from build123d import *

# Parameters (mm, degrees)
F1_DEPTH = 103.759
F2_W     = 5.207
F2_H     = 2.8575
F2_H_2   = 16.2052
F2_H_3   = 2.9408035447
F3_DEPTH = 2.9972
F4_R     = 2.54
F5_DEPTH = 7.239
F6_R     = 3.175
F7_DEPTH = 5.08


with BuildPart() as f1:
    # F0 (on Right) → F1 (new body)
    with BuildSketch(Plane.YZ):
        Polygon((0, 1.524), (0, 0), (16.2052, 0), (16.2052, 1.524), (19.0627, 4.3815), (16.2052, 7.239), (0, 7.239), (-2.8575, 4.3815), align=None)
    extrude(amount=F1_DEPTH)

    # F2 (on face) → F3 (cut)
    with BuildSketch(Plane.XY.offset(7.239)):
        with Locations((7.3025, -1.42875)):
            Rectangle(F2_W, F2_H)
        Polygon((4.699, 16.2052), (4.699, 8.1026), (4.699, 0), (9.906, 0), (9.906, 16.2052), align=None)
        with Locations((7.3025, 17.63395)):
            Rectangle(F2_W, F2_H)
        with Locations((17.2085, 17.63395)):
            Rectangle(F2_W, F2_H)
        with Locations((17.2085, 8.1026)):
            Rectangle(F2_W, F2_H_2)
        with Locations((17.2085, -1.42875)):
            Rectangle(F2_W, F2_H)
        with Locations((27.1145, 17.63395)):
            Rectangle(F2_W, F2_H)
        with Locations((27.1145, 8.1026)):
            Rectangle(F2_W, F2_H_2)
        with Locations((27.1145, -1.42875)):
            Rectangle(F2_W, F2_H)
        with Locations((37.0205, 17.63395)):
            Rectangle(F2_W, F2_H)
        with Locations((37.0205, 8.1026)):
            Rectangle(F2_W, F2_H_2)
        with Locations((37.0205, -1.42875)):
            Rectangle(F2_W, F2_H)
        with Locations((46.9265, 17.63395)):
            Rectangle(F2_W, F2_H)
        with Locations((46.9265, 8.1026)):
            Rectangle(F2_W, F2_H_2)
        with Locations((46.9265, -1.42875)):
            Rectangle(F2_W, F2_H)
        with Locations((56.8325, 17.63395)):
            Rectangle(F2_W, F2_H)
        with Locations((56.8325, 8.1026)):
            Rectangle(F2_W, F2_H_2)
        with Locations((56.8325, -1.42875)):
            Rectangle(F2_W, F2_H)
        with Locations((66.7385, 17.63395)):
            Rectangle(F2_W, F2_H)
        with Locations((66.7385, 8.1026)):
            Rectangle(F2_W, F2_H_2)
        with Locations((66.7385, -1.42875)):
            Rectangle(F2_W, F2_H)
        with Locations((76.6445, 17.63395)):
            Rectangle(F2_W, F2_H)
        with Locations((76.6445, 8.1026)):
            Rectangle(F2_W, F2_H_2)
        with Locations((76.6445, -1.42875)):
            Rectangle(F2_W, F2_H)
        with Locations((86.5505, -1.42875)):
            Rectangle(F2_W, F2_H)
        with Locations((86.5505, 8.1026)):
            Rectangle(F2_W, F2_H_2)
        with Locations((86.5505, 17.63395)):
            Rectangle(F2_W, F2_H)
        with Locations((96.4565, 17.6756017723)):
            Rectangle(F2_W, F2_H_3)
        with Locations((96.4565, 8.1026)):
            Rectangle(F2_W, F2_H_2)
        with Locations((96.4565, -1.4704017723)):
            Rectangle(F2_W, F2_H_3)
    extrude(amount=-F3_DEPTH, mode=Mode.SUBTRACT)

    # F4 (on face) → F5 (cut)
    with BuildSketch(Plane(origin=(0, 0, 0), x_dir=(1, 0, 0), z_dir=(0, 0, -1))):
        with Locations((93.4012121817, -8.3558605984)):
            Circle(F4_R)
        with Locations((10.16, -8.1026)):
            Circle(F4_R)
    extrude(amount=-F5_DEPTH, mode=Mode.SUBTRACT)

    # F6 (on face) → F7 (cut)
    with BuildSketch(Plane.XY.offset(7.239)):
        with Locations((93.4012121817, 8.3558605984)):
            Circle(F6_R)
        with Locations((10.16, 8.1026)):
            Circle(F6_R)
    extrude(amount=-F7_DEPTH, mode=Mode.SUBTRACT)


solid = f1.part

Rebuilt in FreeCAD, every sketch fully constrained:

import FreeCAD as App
import Part
import Sketcher
from FreeCAD import Vector
Q = App.Units.Quantity

doc = App.newDocument("Part")
body = doc.addObject("PartDesign::Body", "Body")

sketch1 = body.newObject("Sketcher::SketchObject", "Sketch")
sketch1.AttachmentSupport = (doc.getObject("YZ_Plane"), [""])
sketch1.MapMode = "FlatFace"
sketch1.addGeometry(Part.LineSegment(Vector(0, 1.524, 0), Vector(0, 0, 0)), False)
sketch1.addGeometry(Part.LineSegment(Vector(0, 0, 0), Vector(16.2052, 0, 0)), False)
sketch1.addGeometry(Part.LineSegment(Vector(16.2052, 0, 0), Vector(16.2052, 1.524, 0)), False)
sketch1.addGeometry(Part.LineSegment(Vector(16.2052, 1.524, 0), Vector(19.0627, 4.3815, 0)), False)
sketch1.addGeometry(Part.LineSegment(Vector(19.0627, 4.3815, 0), Vector(16.2052, 7.239, 0)), False)
sketch1.addGeometry(Part.LineSegment(Vector(16.2052, 7.239, 0), Vector(0, 7.239, 0)), False)
sketch1.addGeometry(Part.LineSegment(Vector(0, 7.239, 0), Vector(-2.8575, 4.3815, 0)), False)
sketch1.addGeometry(Part.LineSegment(Vector(-2.8575, 4.3815, 0), Vector(0, 1.524, 0)), False)
sketch1.addConstraint(Sketcher.Constraint("Coincident", 0, 2, 1, 1))
sketch1.addConstraint(Sketcher.Constraint("Coincident", 1, 2, 2, 1))
sketch1.addConstraint(Sketcher.Constraint("Coincident", 2, 2, 3, 1))
sketch1.addConstraint(Sketcher.Constraint("Coincident", 3, 2, 4, 1))
sketch1.addConstraint(Sketcher.Constraint("Coincident", 4, 2, 5, 1))
sketch1.addConstraint(Sketcher.Constraint("Coincident", 5, 2, 6, 1))
sketch1.addConstraint(Sketcher.Constraint("Coincident", 6, 2, 7, 1))
sketch1.addConstraint(Sketcher.Constraint("Coincident", 7, 2, 0, 1))
sketch1.addConstraint(Sketcher.Constraint("Vertical", 0))
sketch1.addConstraint(Sketcher.Constraint("Horizontal", 1))
sketch1.addConstraint(Sketcher.Constraint("Vertical", 2))
sketch1.addConstraint(Sketcher.Constraint("Horizontal", 5))
sketch1.addConstraint(Sketcher.Constraint("Coincident", 0, 2, -1, 1))
sketch1.addConstraint(Sketcher.Constraint("PointOnObject", 5, 2, -2))
sketch1.addConstraint(Sketcher.Constraint("Perpendicular", 3, 4))
sketch1.addConstraint(Sketcher.Constraint("Perpendicular", 4, 6))
sketch1.addConstraint(Sketcher.Constraint("Perpendicular", 6, 7))
sketch1.addConstraint(Sketcher.Constraint("Horizontal", 3, 2, 6, 2))
sketch1.addConstraint(Sketcher.Constraint("Horizontal", 2, 2, 7, 2))
sketch1.addConstraint(Sketcher.Constraint("Vertical", 2, 2, 4, 2))
sketch1.addConstraint(Sketcher.Constraint("DistanceY", 0, 2, 0, 1, Q("0.06 in")))
sketch1.addConstraint(Sketcher.Constraint("DistanceX", 1, 1, 1, 2, Q("0.638 in")))
sketch1.addConstraint(Sketcher.Constraint("DistanceY", -1, 1, 4, 2, Q("0.285 in")))
pad1 = body.newObject("PartDesign::Pad", "Pad")
pad1.Profile = sketch1
pad1.Length = Q("4.085 in")

sketch2 = body.newObject("Sketcher::SketchObject", "Sketch001")
sketch2.AttachmentSupport = (doc.getObject("XY_Plane"), [""])
sketch2.MapMode = "FlatFace"
sketch2.AttachmentOffset = App.Placement(Vector(0, 0, 0.285 * 25.4), App.Rotation())
sketch2.addGeometry(Part.LineSegment(Vector(4.699, -2.8575, 0), Vector(9.906, -2.8575, 0)), False)
sketch2.addGeometry(Part.LineSegment(Vector(9.906, -2.8575, 0), Vector(9.906, 19.0627, 0)), False)
sketch2.addGeometry(Part.LineSegment(Vector(9.906, 19.0627, 0), Vector(4.699, 19.0627, 0)), False)
sketch2.addGeometry(Part.LineSegment(Vector(4.699, 19.0627, 0), Vector(4.699, -2.8575, 0)), False)
sketch2.addGeometry(Part.LineSegment(Vector(14.605, 19.0627, 0), Vector(14.605, -2.8575, 0)), False)
sketch2.addGeometry(Part.LineSegment(Vector(14.605, -2.8575, 0), Vector(19.812, -2.8575, 0)), False)
sketch2.addGeometry(Part.LineSegment(Vector(19.812, -2.8575, 0), Vector(19.812, 19.0627, 0)), False)
sketch2.addGeometry(Part.LineSegment(Vector(19.812, 19.0627, 0), Vector(14.605, 19.0627, 0)), False)
sketch2.addGeometry(Part.LineSegment(Vector(24.511, 19.0627, 0), Vector(24.511, -2.8575, 0)), False)
sketch2.addGeometry(Part.LineSegment(Vector(24.511, -2.8575, 0), Vector(29.718, -2.8575, 0)), False)
sketch2.addGeometry(Part.LineSegment(Vector(29.718, -2.8575, 0), Vector(29.718, 19.0627, 0)), False)
sketch2.addGeometry(Part.LineSegment(Vector(29.718, 19.0627, 0), Vector(24.511, 19.0627, 0)), False)
sketch2.addGeometry(Part.LineSegment(Vector(34.417, 19.0627, 0), Vector(34.417, -2.8575, 0)), False)
sketch2.addGeometry(Part.LineSegment(Vector(34.417, -2.8575, 0), Vector(39.624, -2.8575, 0)), False)
sketch2.addGeometry(Part.LineSegment(Vector(39.624, -2.8575, 0), Vector(39.624, 19.0627, 0)), False)
sketch2.addGeometry(Part.LineSegment(Vector(39.624, 19.0627, 0), Vector(34.417, 19.0627, 0)), False)
sketch2.addGeometry(Part.LineSegment(Vector(44.323, 19.0627, 0), Vector(44.323, -2.8575, 0)), False)
sketch2.addGeometry(Part.LineSegment(Vector(44.323, -2.8575, 0), Vector(49.53, -2.8575, 0)), False)
sketch2.addGeometry(Part.LineSegment(Vector(49.53, -2.8575, 0), Vector(49.53, 19.0627, 0)), False)
sketch2.addGeometry(Part.LineSegment(Vector(49.53, 19.0627, 0), Vector(44.323, 19.0627, 0)), False)
sketch2.addGeometry(Part.LineSegment(Vector(54.229, 19.0627, 0), Vector(54.229, -2.8575, 0)), False)
sketch2.addGeometry(Part.LineSegment(Vector(54.229, -2.8575, 0), Vector(59.436, -2.8575, 0)), False)
sketch2.addGeometry(Part.LineSegment(Vector(59.436, -2.8575, 0), Vector(59.436, 19.0627, 0)), False)
sketch2.addGeometry(Part.LineSegment(Vector(59.436, 19.0627, 0), Vector(54.229, 19.0627, 0)), False)
sketch2.addGeometry(Part.LineSegment(Vector(64.135, 19.0627, 0), Vector(64.135, -2.8575, 0)), False)
sketch2.addGeometry(Part.LineSegment(Vector(64.135, -2.8575, 0), Vector(69.342, -2.8575, 0)), False)
sketch2.addGeometry(Part.LineSegment(Vector(69.342, -2.8575, 0), Vector(69.342, 19.0627, 0)), False)
sketch2.addGeometry(Part.LineSegment(Vector(69.342, 19.0627, 0), Vector(64.135, 19.0627, 0)), False)
sketch2.addGeometry(Part.LineSegment(Vector(74.041, 19.0627, 0), Vector(74.041, -2.8575, 0)), False)
sketch2.addGeometry(Part.LineSegment(Vector(74.041, -2.8575, 0), Vector(79.248, -2.8575, 0)), False)
sketch2.addGeometry(Part.LineSegment(Vector(79.248, -2.8575, 0), Vector(79.248, 19.0627, 0)), False)
sketch2.addGeometry(Part.LineSegment(Vector(79.248, 19.0627, 0), Vector(74.041, 19.0627, 0)), False)
sketch2.addGeometry(Part.LineSegment(Vector(83.947, -2.8575, 0), Vector(89.154, -2.8575, 0)), False)
sketch2.addGeometry(Part.LineSegment(Vector(89.154, -2.8575, 0), Vector(89.154, 19.0627, 0)), False)
sketch2.addGeometry(Part.LineSegment(Vector(89.154, 19.0627, 0), Vector(83.947, 19.0627, 0)), False)
sketch2.addGeometry(Part.LineSegment(Vector(83.947, 19.0627, 0), Vector(83.947, -2.8575, 0)), False)
sketch2.addGeometry(Part.LineSegment(Vector(93.853, 19.146004, 0), Vector(93.853, -2.940804, 0)), False)
sketch2.addGeometry(Part.LineSegment(Vector(93.853, -2.940804, 0), Vector(99.06, -2.940804, 0)), False)
sketch2.addGeometry(Part.LineSegment(Vector(99.06, -2.940804, 0), Vector(99.06, 19.146004, 0)), False)
sketch2.addGeometry(Part.LineSegment(Vector(99.06, 19.146004, 0), Vector(93.853, 19.146004, 0)), False)
sketch2.addConstraint(Sketcher.Constraint("Coincident", 0, 2, 1, 1))
sketch2.addConstraint(Sketcher.Constraint("Coincident", 1, 2, 2, 1))
sketch2.addConstraint(Sketcher.Constraint("Coincident", 2, 2, 3, 1))
sketch2.addConstraint(Sketcher.Constraint("Coincident", 3, 2, 0, 1))
sketch2.addConstraint(Sketcher.Constraint("Coincident", 4, 2, 5, 1))
sketch2.addConstraint(Sketcher.Constraint("Coincident", 5, 2, 6, 1))
sketch2.addConstraint(Sketcher.Constraint("Coincident", 6, 2, 7, 1))
sketch2.addConstraint(Sketcher.Constraint("Coincident", 7, 2, 4, 1))
sketch2.addConstraint(Sketcher.Constraint("Coincident", 8, 2, 9, 1))
sketch2.addConstraint(Sketcher.Constraint("Coincident", 9, 2, 10, 1))
sketch2.addConstraint(Sketcher.Constraint("Coincident", 10, 2, 11, 1))
sketch2.addConstraint(Sketcher.Constraint("Coincident", 11, 2, 8, 1))
sketch2.addConstraint(Sketcher.Constraint("Coincident", 12, 2, 13, 1))
sketch2.addConstraint(Sketcher.Constraint("Coincident", 13, 2, 14, 1))
sketch2.addConstraint(Sketcher.Constraint("Coincident", 14, 2, 15, 1))
sketch2.addConstraint(Sketcher.Constraint("Coincident", 15, 2, 12, 1))
sketch2.addConstraint(Sketcher.Constraint("Coincident", 16, 2, 17, 1))
sketch2.addConstraint(Sketcher.Constraint("Coincident", 17, 2, 18, 1))
sketch2.addConstraint(Sketcher.Constraint("Coincident", 18, 2, 19, 1))
sketch2.addConstraint(Sketcher.Constraint("Coincident", 19, 2, 16, 1))
sketch2.addConstraint(Sketcher.Constraint("Coincident", 20, 2, 21, 1))
sketch2.addConstraint(Sketcher.Constraint("Coincident", 21, 2, 22, 1))
sketch2.addConstraint(Sketcher.Constraint("Coincident", 22, 2, 23, 1))
sketch2.addConstraint(Sketcher.Constraint("Coincident", 23, 2, 20, 1))
sketch2.addConstraint(Sketcher.Constraint("Coincident", 24, 2, 25, 1))
sketch2.addConstraint(Sketcher.Constraint("Coincident", 25, 2, 26, 1))
sketch2.addConstraint(Sketcher.Constraint("Coincident", 26, 2, 27, 1))
sketch2.addConstraint(Sketcher.Constraint("Coincident", 27, 2, 24, 1))
sketch2.addConstraint(Sketcher.Constraint("Coincident", 28, 2, 29, 1))
sketch2.addConstraint(Sketcher.Constraint("Coincident", 29, 2, 30, 1))
sketch2.addConstraint(Sketcher.Constraint("Coincident", 30, 2, 31, 1))
sketch2.addConstraint(Sketcher.Constraint("Coincident", 31, 2, 28, 1))
sketch2.addConstraint(Sketcher.Constraint("Coincident", 32, 2, 33, 1))
sketch2.addConstraint(Sketcher.Constraint("Coincident", 33, 2, 34, 1))
sketch2.addConstraint(Sketcher.Constraint("Coincident", 34, 2, 35, 1))
sketch2.addConstraint(Sketcher.Constraint("Coincident", 35, 2, 32, 1))
sketch2.addConstraint(Sketcher.Constraint("Coincident", 36, 2, 37, 1))
sketch2.addConstraint(Sketcher.Constraint("Coincident", 37, 2, 38, 1))
sketch2.addConstraint(Sketcher.Constraint("Coincident", 38, 2, 39, 1))
sketch2.addConstraint(Sketcher.Constraint("Coincident", 39, 2, 36, 1))
sketch2.addConstraint(Sketcher.Constraint("Horizontal", 0))
sketch2.addConstraint(Sketcher.Constraint("Vertical", 1))
sketch2.addConstraint(Sketcher.Constraint("Horizontal", 2))
sketch2.addConstraint(Sketcher.Constraint("Vertical", 3))
sketch2.addConstraint(Sketcher.Constraint("Vertical", 4))
sketch2.addConstraint(Sketcher.Constraint("Horizontal", 5))
sketch2.addConstraint(Sketcher.Constraint("Vertical", 6))
sketch2.addConstraint(Sketcher.Constraint("Horizontal", 7))
sketch2.addConstraint(Sketcher.Constraint("Vertical", 8))
sketch2.addConstraint(Sketcher.Constraint("Horizontal", 9))
sketch2.addConstraint(Sketcher.Constraint("Vertical", 10))
sketch2.addConstraint(Sketcher.Constraint("Horizontal", 11))
sketch2.addConstraint(Sketcher.Constraint("Vertical", 12))
sketch2.addConstraint(Sketcher.Constraint("Horizontal", 13))
sketch2.addConstraint(Sketcher.Constraint("Vertical", 14))
sketch2.addConstraint(Sketcher.Constraint("Horizontal", 15))
sketch2.addConstraint(Sketcher.Constraint("Vertical", 16))
sketch2.addConstraint(Sketcher.Constraint("Horizontal", 17))
sketch2.addConstraint(Sketcher.Constraint("Vertical", 18))
sketch2.addConstraint(Sketcher.Constraint("Horizontal", 19))
sketch2.addConstraint(Sketcher.Constraint("Vertical", 20))
sketch2.addConstraint(Sketcher.Constraint("Horizontal", 21))
sketch2.addConstraint(Sketcher.Constraint("Vertical", 22))
sketch2.addConstraint(Sketcher.Constraint("Horizontal", 23))
sketch2.addConstraint(Sketcher.Constraint("Vertical", 24))
sketch2.addConstraint(Sketcher.Constraint("Horizontal", 25))
sketch2.addConstraint(Sketcher.Constraint("Vertical", 26))
sketch2.addConstraint(Sketcher.Constraint("Horizontal", 27))
sketch2.addConstraint(Sketcher.Constraint("Vertical", 28))
sketch2.addConstraint(Sketcher.Constraint("Horizontal", 29))
sketch2.addConstraint(Sketcher.Constraint("Vertical", 30))
sketch2.addConstraint(Sketcher.Constraint("Horizontal", 31))
sketch2.addConstraint(Sketcher.Constraint("Horizontal", 32))
sketch2.addConstraint(Sketcher.Constraint("Vertical", 33))
sketch2.addConstraint(Sketcher.Constraint("Horizontal", 34))
sketch2.addConstraint(Sketcher.Constraint("Vertical", 35))
sketch2.addConstraint(Sketcher.Constraint("Vertical", 36))
sketch2.addConstraint(Sketcher.Constraint("Horizontal", 37))
sketch2.addConstraint(Sketcher.Constraint("Vertical", 38))
sketch2.addConstraint(Sketcher.Constraint("Horizontal", 39))
sketch2.addConstraint(Sketcher.Constraint("Horizontal", 3, 2, 4, 2))
sketch2.addConstraint(Sketcher.Constraint("Horizontal", 2, 2, 6, 2))
sketch2.addConstraint(Sketcher.Constraint("Horizontal", 5, 2, 8, 2))
sketch2.addConstraint(Sketcher.Constraint("Horizontal", 7, 2, 10, 2))
sketch2.addConstraint(Sketcher.Constraint("Horizontal", 9, 2, 12, 2))
sketch2.addConstraint(Sketcher.Constraint("Horizontal", 11, 2, 14, 2))
sketch2.addConstraint(Sketcher.Constraint("Horizontal", 13, 2, 16, 2))
sketch2.addConstraint(Sketcher.Constraint("Horizontal", 15, 2, 18, 2))
sketch2.addConstraint(Sketcher.Constraint("Horizontal", 17, 2, 20, 2))
sketch2.addConstraint(Sketcher.Constraint("Horizontal", 19, 2, 22, 2))
sketch2.addConstraint(Sketcher.Constraint("Horizontal", 21, 2, 24, 2))
sketch2.addConstraint(Sketcher.Constraint("Horizontal", 23, 2, 26, 2))
sketch2.addConstraint(Sketcher.Constraint("Horizontal", 25, 2, 28, 2))
sketch2.addConstraint(Sketcher.Constraint("Horizontal", 27, 2, 30, 2))
sketch2.addConstraint(Sketcher.Constraint("Horizontal", 29, 2, 32, 2))
sketch2.addConstraint(Sketcher.Constraint("Horizontal", 31, 2, 33, 2))
sketch2.addConstraint(Sketcher.Constraint("Equal", 2, 5))
sketch2.addConstraint(Sketcher.Constraint("Equal", 7, 9))
sketch2.addConstraint(Sketcher.Constraint("Equal", 11, 13))
sketch2.addConstraint(Sketcher.Constraint("Equal", 15, 17))
sketch2.addConstraint(Sketcher.Constraint("Equal", 19, 21))
sketch2.addConstraint(Sketcher.Constraint("Equal", 23, 25))
sketch2.addConstraint(Sketcher.Constraint("Equal", 27, 29))
sketch2.addConstraint(Sketcher.Constraint("Equal", 31, 32))
sketch2.addConstraint(Sketcher.Constraint("Equal", 34, 37))
sketch2.addConstraint(Sketcher.Constraint("DistanceX", -1, 1, 37, 2, Q("3.9 in")))
sketch2.addConstraint(Sketcher.Constraint("DistanceX", 0, 1, 0, 2, Q("0.205 in")))
sketch2.addConstraint(Sketcher.Constraint("DistanceY", 1, 1, 1, 2, Q("0.863 in")))
sketch2.addConstraint(Sketcher.Constraint("DistanceX", -1, 1, 0, 2, Q("0.39 in")))
sketch2.addConstraint(Sketcher.Constraint("DistanceX", -1, 1, 5, 2, Q("0.78 in")))
sketch2.addConstraint(Sketcher.Constraint("DistanceX", -1, 1, 9, 2, Q("1.17 in")))
sketch2.addConstraint(Sketcher.Constraint("DistanceX", -1, 1, 13, 2, Q("1.56 in")))
sketch2.addConstraint(Sketcher.Constraint("DistanceX", -1, 1, 17, 2, Q("1.95 in")))
sketch2.addConstraint(Sketcher.Constraint("DistanceX", -1, 1, 21, 2, Q("2.34 in")))
sketch2.addConstraint(Sketcher.Constraint("DistanceX", -1, 1, 25, 2, Q("2.73 in")))
sketch2.addConstraint(Sketcher.Constraint("DistanceX", -1, 1, 29, 2, Q("3.12 in")))
sketch2.addConstraint(Sketcher.Constraint("DistanceX", -1, 1, 32, 2, Q("3.51 in")))
sketch2.addConstraint(Sketcher.Constraint("DistanceY", 0, 2, -1, 1, Q("0.1125 in")))
sketch2.addConstraint(Sketcher.Constraint("DistanceY", 36, 2, 36, 1, 22.086807))
sketch2.addConstraint(Sketcher.Constraint("DistanceY", 36, 2, -1, 1, 2.940804))
pocket1 = body.newObject("PartDesign::Pocket", "Pocket")
pocket1.Profile = sketch2
pocket1.Length = Q("0.118 in")

sketch3 = body.newObject("Sketcher::SketchObject", "Sketch002")
sketch3.AttachmentSupport = (doc.getObject("XY_Plane"), [""])
sketch3.MapMode = "FlatFace"
sketch3.addGeometry(Part.Circle(Vector(93.401212, 8.355861, 0), Vector(0, 0, 1), 2.54), False)
sketch3.addGeometry(Part.Circle(Vector(10.16, 8.1026, 0), Vector(0, 0, 1), 2.54), False)
sketch3.addConstraint(Sketcher.Constraint("Equal", 0, 1))
sketch3.addConstraint(Sketcher.Constraint("Diameter", 0, Q("0.2 in")))
sketch3.addConstraint(Sketcher.Constraint("DistanceX", -1, 1, 1, 3, Q("0.4 in")))
sketch3.addConstraint(Sketcher.Constraint("DistanceY", -1, 1, 1, 3, Q("0.319 in")))
sketch3.addConstraint(Sketcher.Constraint("DistanceY", -1, 1, 0, 3, 8.355861))
sketch3.addConstraint(Sketcher.Constraint("DistanceX", -1, 1, 0, 3, 93.401212))
pocket2 = body.newObject("PartDesign::Pocket", "Pocket001")
pocket2.Profile = sketch3
pocket2.Length = Q("0.285 in")
pocket2.Reversed = True

sketch4 = body.newObject("Sketcher::SketchObject", "Sketch003")
sketch4.AttachmentSupport = (doc.getObject("XY_Plane"), [""])
sketch4.MapMode = "FlatFace"
sketch4.AttachmentOffset = App.Placement(Vector(0, 0, 0.285 * 25.4), App.Rotation())
sketch4.addGeometry(Part.Circle(Vector(93.401212, 8.355861, 0), Vector(0, 0, 1), 3.175), False)
sketch4.addGeometry(Part.Circle(Vector(10.16, 8.1026, 0), Vector(0, 0, 1), 3.175), False)
sketch4.addConstraint(Sketcher.Constraint("Equal", 0, 1))
sketch4.addConstraint(Sketcher.Constraint("Diameter", 0, Q("0.25 in")))
sketch4.addConstraint(Sketcher.Constraint("DistanceX", -1, 1, 1, 3, Q("0.4 in")))
sketch4.addConstraint(Sketcher.Constraint("DistanceY", -1, 1, 1, 3, Q("0.319 in")))
sketch4.addConstraint(Sketcher.Constraint("DistanceY", -1, 1, 0, 3, 8.355861))
sketch4.addConstraint(Sketcher.Constraint("DistanceX", -1, 1, 0, 3, 93.401212))
pocket3 = body.newObject("PartDesign::Pocket", "Pocket002")
pocket3.Profile = sketch4
pocket3.Length = Q("0.2 in")

doc.recompute()
